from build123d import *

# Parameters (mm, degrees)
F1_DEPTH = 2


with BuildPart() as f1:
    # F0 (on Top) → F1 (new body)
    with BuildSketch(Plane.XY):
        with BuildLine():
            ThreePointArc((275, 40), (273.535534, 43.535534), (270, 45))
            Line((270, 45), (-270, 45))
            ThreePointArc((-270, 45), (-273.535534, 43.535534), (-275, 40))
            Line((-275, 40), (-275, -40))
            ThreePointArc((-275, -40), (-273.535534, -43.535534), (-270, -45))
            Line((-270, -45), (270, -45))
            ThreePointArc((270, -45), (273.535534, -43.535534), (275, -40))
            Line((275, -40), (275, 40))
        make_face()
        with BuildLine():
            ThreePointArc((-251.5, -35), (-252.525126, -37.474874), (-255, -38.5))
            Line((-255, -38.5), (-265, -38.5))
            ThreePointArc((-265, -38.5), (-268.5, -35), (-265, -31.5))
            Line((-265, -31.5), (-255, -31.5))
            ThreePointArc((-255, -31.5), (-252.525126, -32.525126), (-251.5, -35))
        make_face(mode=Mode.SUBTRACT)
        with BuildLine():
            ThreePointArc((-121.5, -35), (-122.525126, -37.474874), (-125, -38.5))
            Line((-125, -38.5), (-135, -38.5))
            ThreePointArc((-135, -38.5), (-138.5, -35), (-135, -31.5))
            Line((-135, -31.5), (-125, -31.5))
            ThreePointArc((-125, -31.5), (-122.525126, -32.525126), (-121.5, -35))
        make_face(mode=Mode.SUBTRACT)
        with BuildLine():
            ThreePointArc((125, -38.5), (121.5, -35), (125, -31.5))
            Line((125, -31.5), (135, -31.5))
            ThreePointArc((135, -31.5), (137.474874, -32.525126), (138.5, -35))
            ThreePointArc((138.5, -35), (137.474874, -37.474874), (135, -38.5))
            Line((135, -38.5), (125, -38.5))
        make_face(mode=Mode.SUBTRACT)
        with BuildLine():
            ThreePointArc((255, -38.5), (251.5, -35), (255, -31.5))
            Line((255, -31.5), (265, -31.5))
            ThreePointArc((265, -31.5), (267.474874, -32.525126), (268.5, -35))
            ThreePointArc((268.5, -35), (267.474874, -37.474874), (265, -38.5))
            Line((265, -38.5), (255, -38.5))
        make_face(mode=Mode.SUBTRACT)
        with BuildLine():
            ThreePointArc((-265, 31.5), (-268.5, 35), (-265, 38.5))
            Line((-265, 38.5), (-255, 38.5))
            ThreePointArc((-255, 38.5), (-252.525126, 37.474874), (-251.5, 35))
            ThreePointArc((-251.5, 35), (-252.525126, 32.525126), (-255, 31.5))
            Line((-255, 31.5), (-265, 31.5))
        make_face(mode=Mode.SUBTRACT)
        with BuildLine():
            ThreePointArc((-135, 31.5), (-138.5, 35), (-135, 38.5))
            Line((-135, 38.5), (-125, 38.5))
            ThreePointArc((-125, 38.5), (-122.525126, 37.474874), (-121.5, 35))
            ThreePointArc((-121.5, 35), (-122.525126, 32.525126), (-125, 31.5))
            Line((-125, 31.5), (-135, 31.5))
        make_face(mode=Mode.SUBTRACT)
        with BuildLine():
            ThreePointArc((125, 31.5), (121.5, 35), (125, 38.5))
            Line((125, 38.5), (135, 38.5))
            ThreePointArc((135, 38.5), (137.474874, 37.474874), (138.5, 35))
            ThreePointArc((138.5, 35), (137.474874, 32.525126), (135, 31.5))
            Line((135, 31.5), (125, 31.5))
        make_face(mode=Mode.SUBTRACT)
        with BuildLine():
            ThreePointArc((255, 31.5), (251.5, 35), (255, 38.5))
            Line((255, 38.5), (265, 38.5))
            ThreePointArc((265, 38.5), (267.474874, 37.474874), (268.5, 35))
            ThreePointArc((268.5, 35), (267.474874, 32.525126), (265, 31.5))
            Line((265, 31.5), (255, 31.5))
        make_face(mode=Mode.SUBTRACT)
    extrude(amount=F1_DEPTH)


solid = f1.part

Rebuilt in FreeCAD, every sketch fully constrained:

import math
import FreeCAD as App
import Part
import Sketcher

V = App.Vector
Q = App.Units.Quantity

doc = App.newDocument("Part")
body = doc.addObject("PartDesign::Body", "Body")

sketch1 = body.newObject("Sketcher::SketchObject", "Sketch")
sketch1.AttachmentSupport = (doc.getObject("XY_Plane"), [""])
sketch1.MapMode = "FlatFace"
sketch1.addGeometry(Part.ArcOfCircle(Part.Circle(V(270, 40, 0), V(0, 0, 1), 5), math.radians(0), math.radians(90)), False)
sketch1.addGeometry(Part.LineSegment(V(270, 45, 0), V(-270, 45, 0)), False)
sketch1.addGeometry(Part.ArcOfCircle(Part.Circle(V(-270, 40, 0), V(0, 0, 1), 5), math.radians(90), math.radians(180)), False)
sketch1.addGeometry(Part.LineSegment(V(-275, 40, 0), V(-275, -40, 0)), False)
sketch1.addGeometry(Part.ArcOfCircle(Part.Circle(V(-270, -40, 0), V(0, 0, 1), 5), math.radians(180), math.radians(270)), False)
sketch1.addGeometry(Part.LineSegment(V(-270, -45, 0), V(270, -45, 0)), False)
sketch1.addGeometry(Part.ArcOfCircle(Part.Circle(V(270, -40, 0), V(0, 0, 1), 5), math.radians(-90), math.radians(0)), False)
sketch1.addGeometry(Part.LineSegment(V(275, -40, 0), V(275, 40, 0)), False)
sketch1.addGeometry(Part.ArcOfCircle(Part.Circle(V(-255, -35, 0), V(0, 0, 1), 3.5), math.radians(0), math.radians(90)), False)
sketch1.addGeometry(Part.ArcOfCircle(Part.Circle(V(-255, -35, 0), V(0, 0, 1), 3.5), math.radians(-90), math.radians(0)), False)
sketch1.addGeometry(Part.LineSegment(V(-255, -38.5, 0), V(-265, -38.5, 0)), False)
sketch1.addGeometry(Part.ArcOfCircle(Part.Circle(V(-265, -35, 0), V(0, 0, 1), 3.5), math.radians(90), math.radians(270)), False)
sketch1.addGeometry(Part.LineSegment(V(-265, -31.5, 0), V(-255, -31.5, 0)), False)
sketch1.addGeometry(Part.ArcOfCircle(Part.Circle(V(-125, -35, 0), V(0, 0, 1), 3.5), math.radians(0), math.radians(90)), False)
sketch1.addGeometry(Part.ArcOfCircle(Part.Circle(V(-125, -35, 0), V(0, 0, 1), 3.5), math.radians(-90), math.radians(0)), False)
sketch1.addGeometry(Part.LineSegment(V(-125, -38.5, 0), V(-135, -38.5, 0)), False)
sketch1.addGeometry(Part.ArcOfCircle(Part.Circle(V(-135, -35, 0), V(0, 0, 1), 3.5), math.radians(90), math.radians(270)), False)
sketch1.addGeometry(Part.LineSegment(V(-135, -31.5, 0), V(-125, -31.5, 0)), False)
sketch1.addGeometry(Part.LineSegment(V(135, -38.5, 0), V(125, -38.5, 0)), False)
sketch1.addGeometry(Part.ArcOfCircle(Part.Circle(V(125, -35, 0), V(0, 0, 1), 3.5), math.radians(90), math.radians(270)), False)
sketch1.addGeometry(Part.LineSegment(V(125, -31.5, 0), V(135, -31.5, 0)), False)
sketch1.addGeometry(Part.ArcOfCircle(Part.Circle(V(135, -35, 0), V(0, 0, 1), 3.5), math.radians(0), math.radians(90)), False)
sketch1.addGeometry(Part.ArcOfCircle(Part.Circle(V(135, -35, 0), V(0, 0, 1), 3.5), math.radians(-90), math.radians(0)), False)
sketch1.addGeometry(Part.LineSegment(V(265, -38.5, 0), V(255, -38.5, 0)), False)
sketch1.addGeometry(Part.ArcOfCircle(Part.Circle(V(255, -35, 0), V(0, 0, 1), 3.5), math.radians(90), math.radians(270)), False)
sketch1.addGeometry(Part.LineSegment(V(255, -31.5, 0), V(265, -31.5, 0)), False)
sketch1.addGeometry(Part.ArcOfCircle(Part.Circle(V(265, -35, 0), V(0, 0, 1), 3.5), math.radians(0), math.radians(90)), False)
sketch1.addGeometry(Part.ArcOfCircle(Part.Circle(V(265, -35, 0), V(0, 0, 1), 3.5), math.radians(-90), math.radians(0)), False)
sketch1.addGeometry(Part.LineSegment(V(-255, 31.5, 0), V(-265, 31.5, 0)), False)
sketch1.addGeometry(Part.ArcOfCircle(Part.Circle(V(-265, 35, 0), V(0, 0, 1), 3.5), math.radians(90), math.radians(270)), False)
sketch1.addGeometry(Part.LineSegment(V(-265, 38.5, 0), V(-255, 38.5, 0)), False)
sketch1.addGeometry(Part.ArcOfCircle(Part.Circle(V(-255, 35, 0), V(0, 0, 1), 3.5), math.radians(0), math.radians(90)), False)
sketch1.addGeometry(Part.ArcOfCircle(Part.Circle(V(-255, 35, 0), V(0, 0, 1), 3.5), math.radians(-90), math.radians(0)), False)
sketch1.addGeometry(Part.LineSegment(V(-125, 31.5, 0), V(-135, 31.5, 0)), False)
sketch1.addGeometry(Part.ArcOfCircle(Part.Circle(V(-135, 35, 0), V(0, 0, 1), 3.5), math.radians(90), math.radians(270)), False)
sketch1.addGeometry(Part.LineSegment(V(-135, 38.5, 0), V(-125, 38.5, 0)), False)
sketch1.addGeometry(Part.ArcOfCircle(Part.Circle(V(-125, 35, 0), V(0, 0, 1), 3.5), math.radians(0), math.radians(90)), False)
sketch1.addGeometry(Part.ArcOfCircle(Part.Circle(V(-125, 35, 0), V(0, 0, 1), 3.5), math.radians(-90), math.radians(0)), False)
sketch1.addGeometry(Part.LineSegment(V(135, 31.5, 0), V(125, 31.5, 0)), False)
sketch1.addGeometry(Part.ArcOfCircle(Part.Circle(V(125, 35, 0), V(0, 0, 1), 3.5), math.radians(90), math.radians(270)), False)
sketch1.addGeometry(Part.LineSegment(V(125, 38.5, 0), V(135, 38.5, 0)), False)
sketch1.addGeometry(Part.ArcOfCircle(Part.Circle(V(135, 35, 0), V(0, 0, 1), 3.5), math.radians(0), math.radians(90)), False)
sketch1.addGeometry(Part.ArcOfCircle(Part.Circle(V(135, 35, 0), V(0, 0, 1), 3.5), math.radians(-90), math.radians(0)), False)
sketch1.addGeometry(Part.LineSegment(V(265, 31.5, 0), V(255, 31.5, 0)), False)
sketch1.addGeometry(Part.ArcOfCircle(Part.Circle(V(255, 35, 0), V(0, 0, 1), 3.5), math.radians(90), math.radians(270)), False)
sketch1.addGeometry(Part.LineSegment(V(255, 38.5, 0), V(265, 38.5, 0)), False)
sketch1.addGeometry(Part.ArcOfCircle(Part.Circle(V(265, 35, 0), V(0, 0, 1), 3.5), math.radians(0), math.radians(90)), False)
sketch1.addGeometry(Part.ArcOfCircle(Part.Circle(V(265, 35, 0), V(0, 0, 1), 3.5), math.radians(-90), math.radians(0)), False)
sketch1.addConstraint(Sketcher.Constraint("Tangent", 0, 2, 1, 1))
sketch1.addConstraint(Sketcher.Constraint("Tangent", 1, 2, 2, 1))
sketch1.addConstraint(Sketcher.Constraint("Tangent", 2, 2, 3, 1))
sketch1.addConstraint(Sketcher.Constraint("Tangent", 3, 2, 4, 1))
sketch1.addConstraint(Sketcher.Constraint("Tangent", 4, 2, 5, 1))
sketch1.addConstraint(Sketcher.Constraint("Tangent", 5, 2, 6, 1))
sketch1.addConstraint(Sketcher.Constraint("Tangent", 6, 2, 7, 1))
sketch1.addConstraint(Sketcher.Constraint("Tangent", 7, 2, 0, 1))
sketch1.addConstraint(Sketcher.Constraint("Tangent", 8, 1, 9, 2))
sketch1.addConstraint(Sketcher.Constraint("Tangent", 9, 1, 10, 1))
sketch1.addConstraint(Sketcher.Constraint("Tangent", 10, 2, 11, 2))
sketch1.addConstraint(Sketcher.Constraint("Tangent", 11, 1, 12, 1))
sketch1.addConstraint(Sketcher.Constraint("Tangent", 12, 2, 8, 2))
sketch1.addConstraint(Sketcher.Constraint("Tangent", 13, 1, 14, 2))
sketch1.addConstraint(Sketcher.Constraint("Tangent", 14, 1, 15, 1))
sketch1.addConstraint(Sketcher.Constraint("Tangent", 15, 2, 16, 2))
sketch1.addConstraint(Sketcher.Constraint("Tangent", 16, 1, 17, 1))
sketch1.addConstraint(Sketcher.Constraint("Tangent", 17, 2, 13, 2))
sketch1.addConstraint(Sketcher.Constraint("Tangent", 18, 2, 19, 2))
sketch1.addConstraint(Sketcher.Constraint("Tangent", 19, 1, 20, 1))
sketch1.addConstraint(Sketcher.Constraint("Tangent", 20, 2, 21, 2))
sketch1.addConstraint(Sketcher.Constraint("Tangent", 21, 1, 22, 2))
sketch1.addConstraint(Sketcher.Constraint("Tangent", 22, 1, 18, 1))
sketch1.addConstraint(Sketcher.Constraint("Tangent", 23, 2, 24, 2))
sketch1.addConstraint(Sketcher.Constraint("Tangent", 24, 1, 25, 1))
sketch1.addConstraint(Sketcher.Constraint("Tangent", 25, 2, 26, 2))
sketch1.addConstraint(Sketcher.Constraint("Tangent", 26, 1, 27, 2))
sketch1.addConstraint(Sketcher.Constraint("Tangent", 27, 1, 23, 1))
sketch1.addConstraint(Sketcher.Constraint("Tangent", 28, 2, 29, 2))
sketch1.addConstraint(Sketcher.Constraint("Tangent", 29, 1, 30, 1))
sketch1.addConstraint(Sketcher.Constraint("Tangent", 30, 2, 31, 2))
sketch1.addConstraint(Sketcher.Constraint("Tangent", 31, 1, 32, 2))
sketch1.addConstraint(Sketcher.Constraint("Tangent", 32, 1, 28, 1))
sketch1.addConstraint(Sketcher.Constraint("Tangent", 33, 2, 34, 2))
sketch1.addConstraint(Sketcher.Constraint("Tangent", 34, 1, 35, 1))
sketch1.addConstraint(Sketcher.Constraint("Tangent", 35, 2, 36, 2))
sketch1.addConstraint(Sketcher.Constraint("Tangent", 36, 1, 37, 2))
sketch1.addConstraint(Sketcher.Constraint("Tangent", 37, 1, 33, 1))
sketch1.addConstraint(Sketcher.Constraint("Tangent", 38, 2, 39, 2))
sketch1.addConstraint(Sketcher.Constraint("Tangent", 39, 1, 40, 1))
sketch1.addConstraint(Sketcher.Constraint("Tangent", 40, 2, 41, 2))
sketch1.addConstraint(Sketcher.Constraint("Tangent", 41, 1, 42, 2))
sketch1.addConstraint(Sketcher.Constraint("Tangent", 42, 1, 38, 1))
sketch1.addConstraint(Sketcher.Constraint("Tangent", 43, 2, 44, 2))
sketch1.addConstraint(Sketcher.Constraint("Tangent", 44, 1, 45, 1))
sketch1.addConstraint(Sketcher.Constraint("Tangent", 45, 2, 46, 2))
sketch1.addConstraint(Sketcher.Constraint("Tangent", 46, 1, 47, 2))
sketch1.addConstraint(Sketcher.Constraint("Tangent", 47, 1, 43, 1))
sketch1.addConstraint(Sketcher.Constraint("Horizontal", 1))
sketch1.addConstraint(Sketcher.Constraint("Vertical", 3))
sketch1.addConstraint(Sketcher.Constraint("Horizontal", 5))
sketch1.addConstraint(Sketcher.Constraint("Vertical", 7))
sketch1.addConstraint(Sketcher.Constraint("Horizontal", 10))
sketch1.addConstraint(Sketcher.Constraint("Horizontal", 12))
sketch1.addConstraint(Sketcher.Constraint("Horizontal", 15))
sketch1.addConstraint(Sketcher.Constraint("Horizontal", 17))
sketch1.addConstraint(Sketcher.Constraint("Horizontal", 18))
sketch1.addConstraint(Sketcher.Constraint("Horizontal", 20))
sketch1.addConstraint(Sketcher.Constraint("Horizontal", 23))
sketch1.addConstraint(Sketcher.Constraint("Horizontal", 25))
sketch1.addConstraint(Sketcher.Constraint("Horizontal", 28))
sketch1.addConstraint(Sketcher.Constraint("Horizontal", 30))
sketch1.addConstraint(Sketcher.Constraint("Horizontal", 33))
sketch1.addConstraint(Sketcher.Constraint("Horizontal", 35))
sketch1.addConstraint(Sketcher.Constraint("Horizontal", 38))
sketch1.addConstraint(Sketcher.Constraint("Horizontal", 40))
sketch1.addConstraint(Sketcher.Constraint("Horizontal", 43))
sketch1.addConstraint(Sketcher.Constraint("Horizontal", 45))
sketch1.addConstraint(Sketcher.Constraint("Equal", 0, 2))
sketch1.addConstraint(Sketcher.Constraint("Equal", 2, 4))
sketch1.addConstraint(Sketcher.Constraint("Equal", 4, 6))
sketch1.addConstraint(Sketcher.Constraint("Equal", 8, 9))
sketch1.addConstraint(Sketcher.Constraint("Equal", 11, 13))
sketch1.addConstraint(Sketcher.Constraint("Equal", 13, 14))
sketch1.addConstraint(Sketcher.Constraint("Equal", 16, 19))
sketch1.addConstraint(Sketcher.Constraint("Equal", 19, 21))
sketch1.addConstraint(Sketcher.Constraint("Equal", 22, 24))
sketch1.addConstraint(Sketcher.Constraint("Equal", 24, 26))
sketch1.addConstraint(Sketcher.Constraint("Equal", 27, 29))
sketch1.addConstraint(Sketcher.Constraint("Equal", 29, 31))
sketch1.addConstraint(Sketcher.Constraint("Equal", 32, 34))
sketch1.addConstraint(Sketcher.Constraint("Equal", 34, 36))
sketch1.addConstraint(Sketcher.Constraint("Equal", 37, 39))
sketch1.addConstraint(Sketcher.Constraint("Equal", 39, 41))
sketch1.addConstraint(Sketcher.Constraint("Equal", 42, 44))
sketch1.addConstraint(Sketcher.Constraint("Equal", 44, 46))
sketch1.addConstraint(Sketcher.Constraint("Symmetric", 0, 3, 4, 3, -1, 1))
sketch1.addConstraint(Sketcher.Constraint("Symmetric", 26, 3, 29, 3, -1, 1))
sketch1.addConstraint(Sketcher.Constraint("Symmetric", 21, 3, 34, 3, -1, 1))
sketch1.addConstraint(Sketcher.Constraint("Symmetric", 13, 3, 39, 3, -1, 1))
sketch1.addConstraint(Sketcher.Constraint("Symmetric", 8, 3, 44, 3, -1, 1))
sketch1.addConstraint(Sketcher.Constraint("Symmetric", 13, 3, 19, 3, -2))
sketch1.addConstraint(Sketcher.Constraint("Symmetric", 8, 3, 24, 3, -2))
sketch1.addConstraint(Sketcher.Constraint("Symmetric", 8, 1, 31, 1, -1))
sketch1.addConstraint(Sketcher.Constraint("Symmetric", 13, 1, 36, 1, -1))
sketch1.addConstraint(Sketcher.Constraint("Symmetric", 21, 1, 41, 1, -1))
sketch1.addConstraint(Sketcher.Constraint("Symmetric", 26, 1, 46, 1, -1))
sketch1.addConstraint(Sketcher.Constraint("Horizontal", 11, 3, 13, 3))
sketch1.addConstraint(Sketcher.Constraint("Horizontal", 27, 3, 8, 1))
sketch1.addConstraint(Sketcher.Constraint("Horizontal", 8, 1, 13, 1))
sketch1.addConstraint(Sketcher.Constraint("Horizontal", 13, 1, 21, 1))
sketch1.addConstraint(Sketcher.Constraint("Horizontal", 21, 1, 26, 1))
sketch1.addConstraint(Sketcher.Constraint("Vertical", 11, 3, 29, 3))
sketch1.addConstraint(Sketcher.Constraint("Vertical", 16, 3, 34, 3))
sketch1.addConstraint(Sketcher.Constraint("Equal", 12, 15))
sketch1.addConstraint(Sketcher.Constraint("Radius", 0, Q("5 mm")))
sketch1.addConstraint(Sketcher.Constraint("Radius", 8, Q("3.499999 mm")))
sketch1.addConstraint(Sketcher.Constraint("DistanceX", 1, 2, 1, 1, Q("540 mm")))
sketch1.addConstraint(Sketcher.Constraint("DistanceX", 10, 2, 10, 1, Q("10 mm")))
sketch1.addConstraint(Sketcher.Constraint("DistanceY", 3, 2, 3, 1, Q("80 mm")))
sketch1.addConstraint(Sketcher.Constraint("DistanceX", 8, 3, -1, 1, Q("254.999999 mm")))
sketch1.addConstraint(Sketcher.Constraint("DistanceY", 8, 3, -1, 1, Q("34.999999 mm")))
sketch1.addConstraint(Sketcher.Constraint("DistanceX", 13, 3, -1, 1, Q("124.999999 mm")))
pad1 = body.newObject("PartDesign::Pad", "Pad")
pad1.Profile = sketch1
pad1.Length = 2

doc.recompute()
